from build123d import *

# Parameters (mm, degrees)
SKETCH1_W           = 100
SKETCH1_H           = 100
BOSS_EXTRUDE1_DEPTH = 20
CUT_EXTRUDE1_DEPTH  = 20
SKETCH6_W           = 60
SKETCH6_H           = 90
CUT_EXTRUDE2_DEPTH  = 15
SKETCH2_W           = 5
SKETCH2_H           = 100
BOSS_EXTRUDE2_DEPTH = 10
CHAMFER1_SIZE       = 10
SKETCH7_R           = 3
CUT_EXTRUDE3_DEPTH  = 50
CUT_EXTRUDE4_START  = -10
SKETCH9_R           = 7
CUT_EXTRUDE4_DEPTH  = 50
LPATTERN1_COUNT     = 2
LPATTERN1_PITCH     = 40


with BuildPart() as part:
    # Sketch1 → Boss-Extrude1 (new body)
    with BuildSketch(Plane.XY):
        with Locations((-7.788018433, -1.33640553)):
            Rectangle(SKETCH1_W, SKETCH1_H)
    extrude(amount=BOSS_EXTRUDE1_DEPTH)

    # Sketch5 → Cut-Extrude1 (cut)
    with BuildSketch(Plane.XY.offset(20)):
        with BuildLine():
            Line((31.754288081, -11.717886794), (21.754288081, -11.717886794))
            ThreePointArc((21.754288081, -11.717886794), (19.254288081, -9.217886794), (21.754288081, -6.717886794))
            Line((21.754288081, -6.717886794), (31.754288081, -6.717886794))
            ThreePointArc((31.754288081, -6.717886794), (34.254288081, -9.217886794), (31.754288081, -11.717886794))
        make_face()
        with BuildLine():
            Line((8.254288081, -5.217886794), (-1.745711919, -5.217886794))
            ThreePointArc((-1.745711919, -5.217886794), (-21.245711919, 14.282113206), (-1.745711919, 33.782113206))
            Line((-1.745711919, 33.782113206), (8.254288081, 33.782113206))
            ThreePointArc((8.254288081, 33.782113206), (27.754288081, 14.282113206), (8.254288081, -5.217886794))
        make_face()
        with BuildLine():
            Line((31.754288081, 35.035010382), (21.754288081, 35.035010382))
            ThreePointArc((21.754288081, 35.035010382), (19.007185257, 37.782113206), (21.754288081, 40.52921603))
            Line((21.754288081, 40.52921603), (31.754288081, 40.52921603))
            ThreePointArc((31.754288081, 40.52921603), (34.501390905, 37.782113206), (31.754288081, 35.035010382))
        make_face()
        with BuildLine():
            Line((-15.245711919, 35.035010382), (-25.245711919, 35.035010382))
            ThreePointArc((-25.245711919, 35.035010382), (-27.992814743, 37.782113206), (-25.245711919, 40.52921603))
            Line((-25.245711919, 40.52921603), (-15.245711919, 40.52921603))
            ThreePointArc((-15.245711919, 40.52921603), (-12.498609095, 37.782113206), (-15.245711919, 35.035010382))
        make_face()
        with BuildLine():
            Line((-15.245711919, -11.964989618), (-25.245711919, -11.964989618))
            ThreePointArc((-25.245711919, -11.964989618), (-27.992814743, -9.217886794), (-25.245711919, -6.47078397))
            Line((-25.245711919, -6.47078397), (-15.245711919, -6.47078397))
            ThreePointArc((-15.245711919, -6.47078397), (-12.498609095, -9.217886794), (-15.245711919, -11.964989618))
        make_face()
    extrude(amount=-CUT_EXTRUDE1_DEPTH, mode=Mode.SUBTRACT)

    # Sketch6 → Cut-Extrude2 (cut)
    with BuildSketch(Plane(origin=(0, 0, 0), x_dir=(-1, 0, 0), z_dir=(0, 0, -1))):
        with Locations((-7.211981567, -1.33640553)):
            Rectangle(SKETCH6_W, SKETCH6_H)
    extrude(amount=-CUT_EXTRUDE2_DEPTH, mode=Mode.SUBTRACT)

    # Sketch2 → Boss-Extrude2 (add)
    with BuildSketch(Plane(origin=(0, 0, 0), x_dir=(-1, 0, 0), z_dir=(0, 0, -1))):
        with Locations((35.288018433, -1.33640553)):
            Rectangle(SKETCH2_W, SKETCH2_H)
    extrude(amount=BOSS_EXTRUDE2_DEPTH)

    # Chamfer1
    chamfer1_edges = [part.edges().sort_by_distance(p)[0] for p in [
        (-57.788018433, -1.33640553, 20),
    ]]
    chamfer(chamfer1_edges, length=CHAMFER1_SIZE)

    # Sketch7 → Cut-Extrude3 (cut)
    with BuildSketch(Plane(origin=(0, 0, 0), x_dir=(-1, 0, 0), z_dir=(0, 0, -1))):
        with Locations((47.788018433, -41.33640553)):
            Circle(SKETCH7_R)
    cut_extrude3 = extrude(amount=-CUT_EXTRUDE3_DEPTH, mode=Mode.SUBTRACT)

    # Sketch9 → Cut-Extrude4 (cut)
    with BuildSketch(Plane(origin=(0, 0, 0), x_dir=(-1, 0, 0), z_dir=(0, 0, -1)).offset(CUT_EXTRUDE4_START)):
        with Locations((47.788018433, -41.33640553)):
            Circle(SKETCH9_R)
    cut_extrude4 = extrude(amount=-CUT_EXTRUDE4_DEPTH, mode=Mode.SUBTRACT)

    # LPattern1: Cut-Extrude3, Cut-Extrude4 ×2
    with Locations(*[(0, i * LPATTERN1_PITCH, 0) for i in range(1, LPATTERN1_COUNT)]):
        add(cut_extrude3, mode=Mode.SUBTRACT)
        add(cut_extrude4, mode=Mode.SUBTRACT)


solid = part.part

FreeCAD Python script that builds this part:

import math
import FreeCAD as App
import Part
import Sketcher

V = App.Vector


def edges_at(feature, points):
    """Names of the edges that pass closest to the given points."""
    edges = feature.Shape.Edges
    near = lambda p: min(range(len(edges)), key=lambda i: edges[i].distToShape(Part.Vertex(*p))[0])
    return sorted({f"Edge{near(p) + 1}" for p in points})

doc = App.newDocument("Part")
body = doc.addObject("PartDesign::Body", "Body")

# Sketch on XY plane
sketch1 = doc.addObject("Sketcher::SketchObject", "Sketch")
body.addObject(sketch1)
sketch1.AttachmentSupport = (doc.XY_Plane, [""])
sketch1.MapMode = "FlatFace"
sketch1.addGeometry([
    Part.LineSegment(V(-57.788018, 48.663594, 0), V(-57.788018, -51.336406, 0)),
    Part.LineSegment(V(-57.788018, -51.336406, 0), V(42.211982, -51.336406, 0)),
    Part.LineSegment(V(42.211982, -51.336406, 0), V(42.211982, 48.663594, 0)),
    Part.LineSegment(V(42.211982, 48.663594, 0), V(-57.788018, 48.663594, 0)),
], False)
sketch1.addConstraint([
    Sketcher.Constraint("Coincident", 0, 2, 1, 1),
    Sketcher.Constraint("Coincident", 1, 2, 2, 1),
    Sketcher.Constraint("Coincident", 2, 2, 3, 1),
    Sketcher.Constraint("Coincident", 3, 2, 0, 1),
    Sketcher.Constraint("Vertical", 0),
    Sketcher.Constraint("Horizontal", 1),
    Sketcher.Constraint("Vertical", 2),
    Sketcher.Constraint("Horizontal", 3),
    Sketcher.Constraint("Equal", 3, 0),
    Sketcher.Constraint("DistanceX", 1, 1, 1, 2, 100.0),
    Sketcher.Constraint("DistanceX", 0, 2, -1, 1, 57.788018),
    Sketcher.Constraint("DistanceY", 0, 2, -1, 1, 51.336406),
])
pad1 = doc.addObject("PartDesign::Pad", "Pad")
body.addObject(pad1)
pad1.Profile = sketch1
pad1.Length = 20

# Sketch on XY plane
sketch2 = doc.addObject("Sketcher::SketchObject", "Sketch001")
body.addObject(sketch2)
sketch2.AttachmentSupport = (doc.XY_Plane, [""])
sketch2.MapMode = "FlatFace"
sketch2.AttachmentOffset = App.Placement(V(0, 0, 20), App.Rotation())
sketch2.addGeometry([
    Part.LineSegment(V(21.754288, -11.717887, 0), V(31.754288, -11.717887, 0)),  # 0
    Part.ArcOfCircle(Part.Circle(V(31.754288, -9.217887, 0), V(0, 0, 1), 2.5), math.radians(-90), math.radians(90)),  # 1
    Part.LineSegment(V(31.754288, -6.717887, 0), V(21.754288, -6.717887, 0)),  # 2
    Part.ArcOfCircle(Part.Circle(V(21.754288, -9.217887, 0), V(0, 0, 1), 2.5), math.radians(90), math.radians(270)),  # 3
    Part.LineSegment(V(-1.745712, -5.217887, 0), V(8.254288, -5.217887, 0)),  # 4
    Part.ArcOfCircle(Part.Circle(V(8.254288, 14.282113, 0), V(0, 0, 1), 19.5), math.radians(-90), math.radians(90)),  # 5
    Part.LineSegment(V(8.254288, 33.782113, 0), V(-1.745712, 33.782113, 0)),  # 6
    Part.ArcOfCircle(Part.Circle(V(-1.745712, 14.282113, 0), V(0, 0, 1), 19.5), math.radians(90), math.radians(270)),  # 7
    Part.LineSegment(V(21.754288, 35.03501, 0), V(31.754288, 35.03501, 0)),  # 8
    Part.ArcOfCircle(Part.Circle(V(31.754288, 37.782113, 0), V(0, 0, 1), 2.747103), math.radians(-90), math.radians(90)),  # 9
    Part.LineSegment(V(31.754288, 40.529216, 0), V(21.754288, 40.529216, 0)),  # 10
    Part.ArcOfCircle(Part.Circle(V(21.754288, 37.782113, 0), V(0, 0, 1), 2.747103), math.radians(90), math.radians(270)),  # 11
    Part.LineSegment(V(-25.245712, 35.03501, 0), V(-15.245712, 35.03501, 0)),  # 12
    Part.ArcOfCircle(Part.Circle(V(-15.245712, 37.782113, 0), V(0, 0, 1), 2.747103), math.radians(-90), math.radians(90)),  # 13
    Part.LineSegment(V(-15.245712, 40.529216, 0), V(-25.245712, 40.529216, 0)),  # 14
    Part.ArcOfCircle(Part.Circle(V(-25.245712, 37.782113, 0), V(0, 0, 1), 2.747103), math.radians(90), math.radians(270)),  # 15
    Part.LineSegment(V(-25.245712, -11.96499, 0), V(-15.245712, -11.96499, 0)),  # 16
    Part.ArcOfCircle(Part.Circle(V(-15.245712, -9.217887, 0), V(0, 0, 1), 2.747103), math.radians(-90), math.radians(90)),  # 17
    Part.LineSegment(V(-15.245712, -6.470784, 0), V(-25.245712, -6.470784, 0)),  # 18
    Part.ArcOfCircle(Part.Circle(V(-25.245712, -9.217887, 0), V(0, 0, 1), 2.747103), math.radians(90), math.radians(270)),  # 19
], False)
sketch2.addConstraint([
    Sketcher.Constraint("Tangent", 0, 2, 1, 1),
    Sketcher.Constraint("Tangent", 1, 2, 2, 1),
    Sketcher.Constraint("Tangent", 2, 2, 3, 1),
    Sketcher.Constraint("Tangent", 3, 2, 0, 1),
    Sketcher.Constraint("Tangent", 4, 2, 5, 1),
    Sketcher.Constraint("Tangent", 5, 2, 6, 1),
    Sketcher.Constraint("Tangent", 6, 2, 7, 1),
    Sketcher.Constraint("Tangent", 7, 2, 4, 1),
    Sketcher.Constraint("Tangent", 8, 2, 9, 1),
    Sketcher.Constraint("Tangent", 9, 2, 10, 1),
    Sketcher.Constraint("Tangent", 10, 2, 11, 1),
    Sketcher.Constraint("Tangent", 11, 2, 8, 1),
    Sketcher.Constraint("Tangent", 12, 2, 13, 1),
    Sketcher.Constraint("Tangent", 13, 2, 14, 1),
    Sketcher.Constraint("Tangent", 14, 2, 15, 1),
    Sketcher.Constraint("Tangent", 15, 2, 12, 1),
    Sketcher.Constraint("Tangent", 16, 2, 17, 1),
    Sketcher.Constraint("Tangent", 17, 2, 18, 1),
    Sketcher.Constraint("Tangent", 18, 2, 19, 1),
    Sketcher.Constraint("Tangent", 19, 2, 16, 1),
    Sketcher.Constraint("Horizontal", 0),
    Sketcher.Constraint("Horizontal", 2),
    Sketcher.Constraint("Horizontal", 4),
    Sketcher.Constraint("Horizontal", 6),
    Sketcher.Constraint("Horizontal", 8),
    Sketcher.Constraint("Horizontal", 10),
    Sketcher.Constraint("Horizontal", 12),
    Sketcher.Constraint("Horizontal", 14),
    Sketcher.Constraint("Horizontal", 16),
    Sketcher.Constraint("Horizontal", 18),
    Sketcher.Constraint("Equal", 11, 13),
    Sketcher.Constraint("Equal", 15, 17),
    Sketcher.Constraint("Horizontal", 11, 3, 13, 3),
    Sketcher.Constraint("Horizontal", 3, 3, 17, 3),
    Sketcher.Constraint("Vertical", 1, 3, 9, 3),
    Sketcher.Constraint("Vertical", 3, 3, 11, 3),
    Sketcher.Constraint("Vertical", 13, 3, 17, 3),
    Sketcher.Constraint("Vertical", 15, 3, 19, 3),
    Sketcher.Constraint("Equal", 2, 4),
    Sketcher.Constraint("Equal", 10, 12),
    Sketcher.Constraint("Radius", 1, 2.5),
    Sketcher.Constraint("Radius", 5, 19.5),
    Sketcher.Constraint("DistanceX", 0, 1, 0, 2, 10.0),
    Sketcher.Constraint("DistanceY", 1, 3, 9, 3, 47.0),
    Sketcher.Constraint("DistanceX", 13, 3, 11, 3, 37.0),
    Sketcher.Constraint("DistanceY", 0, 2, 5, 3, 26.0),
    Sketcher.Constraint("DistanceX", 5, 3, 3, 3, 13.5),
    Sketcher.Constraint("Radius", 9, 2.747103),
    Sketcher.Constraint("DistanceX", -1, 1, 1, 3, 31.754288),
    Sketcher.Constraint("DistanceY", -1, 1, 8, 2, 35.03501),
])
pocket1 = doc.addObject("PartDesign::Pocket", "Pocket")
body.addObject(pocket1)
pocket1.Profile = sketch2
pocket1.Length = 20

# Sketch on XY plane
sketch3 = doc.addObject("Sketcher::SketchObject", "Sketch002")
body.addObject(sketch3)
sketch3.AttachmentSupport = (doc.XY_Plane, [""])
sketch3.MapMode = "FlatFace"
sketch3.addGeometry([
    Part.LineSegment(V(37.211982, 43.663594, 0), V(37.211982, -46.336406, 0)),
    Part.LineSegment(V(37.211982, -46.336406, 0), V(-22.788018, -46.336406, 0)),
    Part.LineSegment(V(-22.788018, -46.336406, 0), V(-22.788018, 43.663594, 0)),
    Part.LineSegment(V(-22.788018, 43.663594, 0), V(37.211982, 43.663594, 0)),
], False)
sketch3.addConstraint([
    Sketcher.Constraint("Coincident", 0, 2, 1, 1),
    Sketcher.Constraint("Coincident", 1, 2, 2, 1),
    Sketcher.Constraint("Coincident", 2, 2, 3, 1),
    Sketcher.Constraint("Coincident", 3, 2, 0, 1),
    Sketcher.Constraint("Vertical", 0),
    Sketcher.Constraint("Horizontal", 1),
    Sketcher.Constraint("Vertical", 2),
    Sketcher.Constraint("Horizontal", 3),
    Sketcher.Constraint("DistanceX", 1, 2, 1, 1, 60.0),
    Sketcher.Constraint("DistanceY", 0, 2, 0, 1, 90.0),
    Sketcher.Constraint("DistanceX", -1, 1, 0, 2, 37.211982),
    Sketcher.Constraint("DistanceY", 0, 2, -1, 1, 46.336406),
])
pocket2 = doc.addObject("PartDesign::Pocket", "Pocket001")
body.addObject(pocket2)
pocket2.Profile = sketch3
pocket2.Length = 15
pocket2.Reversed = True

# Sketch on XY plane
sketch4 = doc.addObject("Sketcher::SketchObject", "Sketch003")
body.addObject(sketch4)
sketch4.AttachmentSupport = (doc.XY_Plane, [""])
sketch4.MapMode = "FlatFace"
sketch4.addGeometry([
    Part.LineSegment(V(-32.788018, 48.663594, 0), V(-32.788018, -51.336406, 0)),
    Part.LineSegment(V(-32.788018, -51.336406, 0), V(-37.788018, -51.336406, 0)),
    Part.LineSegment(V(-37.788018, -51.336406, 0), V(-37.788018, 48.663594, 0)),
    Part.LineSegment(V(-37.788018, 48.663594, 0), V(-32.788018, 48.663594, 0)),
], False)
sketch4.addConstraint([
    Sketcher.Constraint("Coincident", 0, 2, 1, 1),
    Sketcher.Constraint("Coincident", 1, 2, 2, 1),
    Sketcher.Constraint("Coincident", 2, 2, 3, 1),
    Sketcher.Constraint("Coincident", 3, 2, 0, 1),
    Sketcher.Constraint("Vertical", 0),
    Sketcher.Constraint("Horizontal", 1),
    Sketcher.Constraint("Vertical", 2),
    Sketcher.Constraint("Horizontal", 3),
    Sketcher.Constraint("DistanceX", 1, 2, 1, 1, 5.0),
    Sketcher.Constraint("DistanceY", 0, 2, 0, 1, 100.0),
    Sketcher.Constraint("DistanceX", 0, 2, -1, 1, 32.788018),
    Sketcher.Constraint("DistanceY", 0, 2, -1, 1, 51.336406),
])
pad2 = doc.addObject("PartDesign::Pad", "Pad001")
body.addObject(pad2)
pad2.Profile = sketch4
pad2.Length = 10
pad2.Reversed = True
doc.recompute()

chamfer = doc.addObject("PartDesign::Chamfer", "Chamfer")
body.addObject(chamfer)
chamfer.Base = (pad2, edges_at(pad2, [(-57.788, -1.336, 20)]))
chamfer.Size = 10

# Sketch on XY plane
sketch5 = doc.addObject("Sketcher::SketchObject", "Sketch004")
body.addObject(sketch5)
sketch5.AttachmentSupport = (doc.XY_Plane, [""])
sketch5.MapMode = "FlatFace"
sketch5.addGeometry(Part.Circle(V(-47.788018, -41.336406, 0), V(0, 0, 1), 3), False)
sketch5.addConstraint([
    Sketcher.Constraint("Diameter", 0, 6.0),
    Sketcher.Constraint("DistanceX", 0, 3, -1, 1, 47.788018),
    Sketcher.Constraint("DistanceY", 0, 3, -1, 1, 41.336406),
])
pocket3 = doc.addObject("PartDesign::Pocket", "Pocket002")
body.addObject(pocket3)
pocket3.Profile = sketch5
pocket3.Length = 50
pocket3.Reversed = True

# Sketch on XY plane
sketch6 = doc.addObject("Sketcher::SketchObject", "Sketch005")
body.addObject(sketch6)
sketch6.AttachmentSupport = (doc.XY_Plane, [""])
sketch6.MapMode = "FlatFace"
sketch6.AttachmentOffset = App.Placement(V(0, 0, 10), App.Rotation())
sketch6.addGeometry(Part.Circle(V(-47.788018, -41.336406, 0), V(0, 0, 1), 7), False)
sketch6.addConstraint([
    Sketcher.Constraint("Diameter", 0, 14.0),
    Sketcher.Constraint("DistanceX", 0, 3, -1, 1, 47.788018),
    Sketcher.Constraint("DistanceY", 0, 3, -1, 1, 41.336406),
])
pocket4 = doc.addObject("PartDesign::Pocket", "Pocket003")
body.addObject(pocket4)
pocket4.Profile = sketch6
pocket4.Length = 50
pocket4.Reversed = True
doc.recompute()

linearpattern = doc.addObject("PartDesign::LinearPattern", "LinearPattern")
body.addObject(linearpattern)
linearpattern.Originals = [pocket3, pocket4]
linearpattern.Direction = (doc.Y_Axis, [""])
linearpattern.Mode = "offset"
linearpattern.Offset = 40
linearpattern.Occurrences = 2
body.Tip = linearpattern

doc.recompute()
